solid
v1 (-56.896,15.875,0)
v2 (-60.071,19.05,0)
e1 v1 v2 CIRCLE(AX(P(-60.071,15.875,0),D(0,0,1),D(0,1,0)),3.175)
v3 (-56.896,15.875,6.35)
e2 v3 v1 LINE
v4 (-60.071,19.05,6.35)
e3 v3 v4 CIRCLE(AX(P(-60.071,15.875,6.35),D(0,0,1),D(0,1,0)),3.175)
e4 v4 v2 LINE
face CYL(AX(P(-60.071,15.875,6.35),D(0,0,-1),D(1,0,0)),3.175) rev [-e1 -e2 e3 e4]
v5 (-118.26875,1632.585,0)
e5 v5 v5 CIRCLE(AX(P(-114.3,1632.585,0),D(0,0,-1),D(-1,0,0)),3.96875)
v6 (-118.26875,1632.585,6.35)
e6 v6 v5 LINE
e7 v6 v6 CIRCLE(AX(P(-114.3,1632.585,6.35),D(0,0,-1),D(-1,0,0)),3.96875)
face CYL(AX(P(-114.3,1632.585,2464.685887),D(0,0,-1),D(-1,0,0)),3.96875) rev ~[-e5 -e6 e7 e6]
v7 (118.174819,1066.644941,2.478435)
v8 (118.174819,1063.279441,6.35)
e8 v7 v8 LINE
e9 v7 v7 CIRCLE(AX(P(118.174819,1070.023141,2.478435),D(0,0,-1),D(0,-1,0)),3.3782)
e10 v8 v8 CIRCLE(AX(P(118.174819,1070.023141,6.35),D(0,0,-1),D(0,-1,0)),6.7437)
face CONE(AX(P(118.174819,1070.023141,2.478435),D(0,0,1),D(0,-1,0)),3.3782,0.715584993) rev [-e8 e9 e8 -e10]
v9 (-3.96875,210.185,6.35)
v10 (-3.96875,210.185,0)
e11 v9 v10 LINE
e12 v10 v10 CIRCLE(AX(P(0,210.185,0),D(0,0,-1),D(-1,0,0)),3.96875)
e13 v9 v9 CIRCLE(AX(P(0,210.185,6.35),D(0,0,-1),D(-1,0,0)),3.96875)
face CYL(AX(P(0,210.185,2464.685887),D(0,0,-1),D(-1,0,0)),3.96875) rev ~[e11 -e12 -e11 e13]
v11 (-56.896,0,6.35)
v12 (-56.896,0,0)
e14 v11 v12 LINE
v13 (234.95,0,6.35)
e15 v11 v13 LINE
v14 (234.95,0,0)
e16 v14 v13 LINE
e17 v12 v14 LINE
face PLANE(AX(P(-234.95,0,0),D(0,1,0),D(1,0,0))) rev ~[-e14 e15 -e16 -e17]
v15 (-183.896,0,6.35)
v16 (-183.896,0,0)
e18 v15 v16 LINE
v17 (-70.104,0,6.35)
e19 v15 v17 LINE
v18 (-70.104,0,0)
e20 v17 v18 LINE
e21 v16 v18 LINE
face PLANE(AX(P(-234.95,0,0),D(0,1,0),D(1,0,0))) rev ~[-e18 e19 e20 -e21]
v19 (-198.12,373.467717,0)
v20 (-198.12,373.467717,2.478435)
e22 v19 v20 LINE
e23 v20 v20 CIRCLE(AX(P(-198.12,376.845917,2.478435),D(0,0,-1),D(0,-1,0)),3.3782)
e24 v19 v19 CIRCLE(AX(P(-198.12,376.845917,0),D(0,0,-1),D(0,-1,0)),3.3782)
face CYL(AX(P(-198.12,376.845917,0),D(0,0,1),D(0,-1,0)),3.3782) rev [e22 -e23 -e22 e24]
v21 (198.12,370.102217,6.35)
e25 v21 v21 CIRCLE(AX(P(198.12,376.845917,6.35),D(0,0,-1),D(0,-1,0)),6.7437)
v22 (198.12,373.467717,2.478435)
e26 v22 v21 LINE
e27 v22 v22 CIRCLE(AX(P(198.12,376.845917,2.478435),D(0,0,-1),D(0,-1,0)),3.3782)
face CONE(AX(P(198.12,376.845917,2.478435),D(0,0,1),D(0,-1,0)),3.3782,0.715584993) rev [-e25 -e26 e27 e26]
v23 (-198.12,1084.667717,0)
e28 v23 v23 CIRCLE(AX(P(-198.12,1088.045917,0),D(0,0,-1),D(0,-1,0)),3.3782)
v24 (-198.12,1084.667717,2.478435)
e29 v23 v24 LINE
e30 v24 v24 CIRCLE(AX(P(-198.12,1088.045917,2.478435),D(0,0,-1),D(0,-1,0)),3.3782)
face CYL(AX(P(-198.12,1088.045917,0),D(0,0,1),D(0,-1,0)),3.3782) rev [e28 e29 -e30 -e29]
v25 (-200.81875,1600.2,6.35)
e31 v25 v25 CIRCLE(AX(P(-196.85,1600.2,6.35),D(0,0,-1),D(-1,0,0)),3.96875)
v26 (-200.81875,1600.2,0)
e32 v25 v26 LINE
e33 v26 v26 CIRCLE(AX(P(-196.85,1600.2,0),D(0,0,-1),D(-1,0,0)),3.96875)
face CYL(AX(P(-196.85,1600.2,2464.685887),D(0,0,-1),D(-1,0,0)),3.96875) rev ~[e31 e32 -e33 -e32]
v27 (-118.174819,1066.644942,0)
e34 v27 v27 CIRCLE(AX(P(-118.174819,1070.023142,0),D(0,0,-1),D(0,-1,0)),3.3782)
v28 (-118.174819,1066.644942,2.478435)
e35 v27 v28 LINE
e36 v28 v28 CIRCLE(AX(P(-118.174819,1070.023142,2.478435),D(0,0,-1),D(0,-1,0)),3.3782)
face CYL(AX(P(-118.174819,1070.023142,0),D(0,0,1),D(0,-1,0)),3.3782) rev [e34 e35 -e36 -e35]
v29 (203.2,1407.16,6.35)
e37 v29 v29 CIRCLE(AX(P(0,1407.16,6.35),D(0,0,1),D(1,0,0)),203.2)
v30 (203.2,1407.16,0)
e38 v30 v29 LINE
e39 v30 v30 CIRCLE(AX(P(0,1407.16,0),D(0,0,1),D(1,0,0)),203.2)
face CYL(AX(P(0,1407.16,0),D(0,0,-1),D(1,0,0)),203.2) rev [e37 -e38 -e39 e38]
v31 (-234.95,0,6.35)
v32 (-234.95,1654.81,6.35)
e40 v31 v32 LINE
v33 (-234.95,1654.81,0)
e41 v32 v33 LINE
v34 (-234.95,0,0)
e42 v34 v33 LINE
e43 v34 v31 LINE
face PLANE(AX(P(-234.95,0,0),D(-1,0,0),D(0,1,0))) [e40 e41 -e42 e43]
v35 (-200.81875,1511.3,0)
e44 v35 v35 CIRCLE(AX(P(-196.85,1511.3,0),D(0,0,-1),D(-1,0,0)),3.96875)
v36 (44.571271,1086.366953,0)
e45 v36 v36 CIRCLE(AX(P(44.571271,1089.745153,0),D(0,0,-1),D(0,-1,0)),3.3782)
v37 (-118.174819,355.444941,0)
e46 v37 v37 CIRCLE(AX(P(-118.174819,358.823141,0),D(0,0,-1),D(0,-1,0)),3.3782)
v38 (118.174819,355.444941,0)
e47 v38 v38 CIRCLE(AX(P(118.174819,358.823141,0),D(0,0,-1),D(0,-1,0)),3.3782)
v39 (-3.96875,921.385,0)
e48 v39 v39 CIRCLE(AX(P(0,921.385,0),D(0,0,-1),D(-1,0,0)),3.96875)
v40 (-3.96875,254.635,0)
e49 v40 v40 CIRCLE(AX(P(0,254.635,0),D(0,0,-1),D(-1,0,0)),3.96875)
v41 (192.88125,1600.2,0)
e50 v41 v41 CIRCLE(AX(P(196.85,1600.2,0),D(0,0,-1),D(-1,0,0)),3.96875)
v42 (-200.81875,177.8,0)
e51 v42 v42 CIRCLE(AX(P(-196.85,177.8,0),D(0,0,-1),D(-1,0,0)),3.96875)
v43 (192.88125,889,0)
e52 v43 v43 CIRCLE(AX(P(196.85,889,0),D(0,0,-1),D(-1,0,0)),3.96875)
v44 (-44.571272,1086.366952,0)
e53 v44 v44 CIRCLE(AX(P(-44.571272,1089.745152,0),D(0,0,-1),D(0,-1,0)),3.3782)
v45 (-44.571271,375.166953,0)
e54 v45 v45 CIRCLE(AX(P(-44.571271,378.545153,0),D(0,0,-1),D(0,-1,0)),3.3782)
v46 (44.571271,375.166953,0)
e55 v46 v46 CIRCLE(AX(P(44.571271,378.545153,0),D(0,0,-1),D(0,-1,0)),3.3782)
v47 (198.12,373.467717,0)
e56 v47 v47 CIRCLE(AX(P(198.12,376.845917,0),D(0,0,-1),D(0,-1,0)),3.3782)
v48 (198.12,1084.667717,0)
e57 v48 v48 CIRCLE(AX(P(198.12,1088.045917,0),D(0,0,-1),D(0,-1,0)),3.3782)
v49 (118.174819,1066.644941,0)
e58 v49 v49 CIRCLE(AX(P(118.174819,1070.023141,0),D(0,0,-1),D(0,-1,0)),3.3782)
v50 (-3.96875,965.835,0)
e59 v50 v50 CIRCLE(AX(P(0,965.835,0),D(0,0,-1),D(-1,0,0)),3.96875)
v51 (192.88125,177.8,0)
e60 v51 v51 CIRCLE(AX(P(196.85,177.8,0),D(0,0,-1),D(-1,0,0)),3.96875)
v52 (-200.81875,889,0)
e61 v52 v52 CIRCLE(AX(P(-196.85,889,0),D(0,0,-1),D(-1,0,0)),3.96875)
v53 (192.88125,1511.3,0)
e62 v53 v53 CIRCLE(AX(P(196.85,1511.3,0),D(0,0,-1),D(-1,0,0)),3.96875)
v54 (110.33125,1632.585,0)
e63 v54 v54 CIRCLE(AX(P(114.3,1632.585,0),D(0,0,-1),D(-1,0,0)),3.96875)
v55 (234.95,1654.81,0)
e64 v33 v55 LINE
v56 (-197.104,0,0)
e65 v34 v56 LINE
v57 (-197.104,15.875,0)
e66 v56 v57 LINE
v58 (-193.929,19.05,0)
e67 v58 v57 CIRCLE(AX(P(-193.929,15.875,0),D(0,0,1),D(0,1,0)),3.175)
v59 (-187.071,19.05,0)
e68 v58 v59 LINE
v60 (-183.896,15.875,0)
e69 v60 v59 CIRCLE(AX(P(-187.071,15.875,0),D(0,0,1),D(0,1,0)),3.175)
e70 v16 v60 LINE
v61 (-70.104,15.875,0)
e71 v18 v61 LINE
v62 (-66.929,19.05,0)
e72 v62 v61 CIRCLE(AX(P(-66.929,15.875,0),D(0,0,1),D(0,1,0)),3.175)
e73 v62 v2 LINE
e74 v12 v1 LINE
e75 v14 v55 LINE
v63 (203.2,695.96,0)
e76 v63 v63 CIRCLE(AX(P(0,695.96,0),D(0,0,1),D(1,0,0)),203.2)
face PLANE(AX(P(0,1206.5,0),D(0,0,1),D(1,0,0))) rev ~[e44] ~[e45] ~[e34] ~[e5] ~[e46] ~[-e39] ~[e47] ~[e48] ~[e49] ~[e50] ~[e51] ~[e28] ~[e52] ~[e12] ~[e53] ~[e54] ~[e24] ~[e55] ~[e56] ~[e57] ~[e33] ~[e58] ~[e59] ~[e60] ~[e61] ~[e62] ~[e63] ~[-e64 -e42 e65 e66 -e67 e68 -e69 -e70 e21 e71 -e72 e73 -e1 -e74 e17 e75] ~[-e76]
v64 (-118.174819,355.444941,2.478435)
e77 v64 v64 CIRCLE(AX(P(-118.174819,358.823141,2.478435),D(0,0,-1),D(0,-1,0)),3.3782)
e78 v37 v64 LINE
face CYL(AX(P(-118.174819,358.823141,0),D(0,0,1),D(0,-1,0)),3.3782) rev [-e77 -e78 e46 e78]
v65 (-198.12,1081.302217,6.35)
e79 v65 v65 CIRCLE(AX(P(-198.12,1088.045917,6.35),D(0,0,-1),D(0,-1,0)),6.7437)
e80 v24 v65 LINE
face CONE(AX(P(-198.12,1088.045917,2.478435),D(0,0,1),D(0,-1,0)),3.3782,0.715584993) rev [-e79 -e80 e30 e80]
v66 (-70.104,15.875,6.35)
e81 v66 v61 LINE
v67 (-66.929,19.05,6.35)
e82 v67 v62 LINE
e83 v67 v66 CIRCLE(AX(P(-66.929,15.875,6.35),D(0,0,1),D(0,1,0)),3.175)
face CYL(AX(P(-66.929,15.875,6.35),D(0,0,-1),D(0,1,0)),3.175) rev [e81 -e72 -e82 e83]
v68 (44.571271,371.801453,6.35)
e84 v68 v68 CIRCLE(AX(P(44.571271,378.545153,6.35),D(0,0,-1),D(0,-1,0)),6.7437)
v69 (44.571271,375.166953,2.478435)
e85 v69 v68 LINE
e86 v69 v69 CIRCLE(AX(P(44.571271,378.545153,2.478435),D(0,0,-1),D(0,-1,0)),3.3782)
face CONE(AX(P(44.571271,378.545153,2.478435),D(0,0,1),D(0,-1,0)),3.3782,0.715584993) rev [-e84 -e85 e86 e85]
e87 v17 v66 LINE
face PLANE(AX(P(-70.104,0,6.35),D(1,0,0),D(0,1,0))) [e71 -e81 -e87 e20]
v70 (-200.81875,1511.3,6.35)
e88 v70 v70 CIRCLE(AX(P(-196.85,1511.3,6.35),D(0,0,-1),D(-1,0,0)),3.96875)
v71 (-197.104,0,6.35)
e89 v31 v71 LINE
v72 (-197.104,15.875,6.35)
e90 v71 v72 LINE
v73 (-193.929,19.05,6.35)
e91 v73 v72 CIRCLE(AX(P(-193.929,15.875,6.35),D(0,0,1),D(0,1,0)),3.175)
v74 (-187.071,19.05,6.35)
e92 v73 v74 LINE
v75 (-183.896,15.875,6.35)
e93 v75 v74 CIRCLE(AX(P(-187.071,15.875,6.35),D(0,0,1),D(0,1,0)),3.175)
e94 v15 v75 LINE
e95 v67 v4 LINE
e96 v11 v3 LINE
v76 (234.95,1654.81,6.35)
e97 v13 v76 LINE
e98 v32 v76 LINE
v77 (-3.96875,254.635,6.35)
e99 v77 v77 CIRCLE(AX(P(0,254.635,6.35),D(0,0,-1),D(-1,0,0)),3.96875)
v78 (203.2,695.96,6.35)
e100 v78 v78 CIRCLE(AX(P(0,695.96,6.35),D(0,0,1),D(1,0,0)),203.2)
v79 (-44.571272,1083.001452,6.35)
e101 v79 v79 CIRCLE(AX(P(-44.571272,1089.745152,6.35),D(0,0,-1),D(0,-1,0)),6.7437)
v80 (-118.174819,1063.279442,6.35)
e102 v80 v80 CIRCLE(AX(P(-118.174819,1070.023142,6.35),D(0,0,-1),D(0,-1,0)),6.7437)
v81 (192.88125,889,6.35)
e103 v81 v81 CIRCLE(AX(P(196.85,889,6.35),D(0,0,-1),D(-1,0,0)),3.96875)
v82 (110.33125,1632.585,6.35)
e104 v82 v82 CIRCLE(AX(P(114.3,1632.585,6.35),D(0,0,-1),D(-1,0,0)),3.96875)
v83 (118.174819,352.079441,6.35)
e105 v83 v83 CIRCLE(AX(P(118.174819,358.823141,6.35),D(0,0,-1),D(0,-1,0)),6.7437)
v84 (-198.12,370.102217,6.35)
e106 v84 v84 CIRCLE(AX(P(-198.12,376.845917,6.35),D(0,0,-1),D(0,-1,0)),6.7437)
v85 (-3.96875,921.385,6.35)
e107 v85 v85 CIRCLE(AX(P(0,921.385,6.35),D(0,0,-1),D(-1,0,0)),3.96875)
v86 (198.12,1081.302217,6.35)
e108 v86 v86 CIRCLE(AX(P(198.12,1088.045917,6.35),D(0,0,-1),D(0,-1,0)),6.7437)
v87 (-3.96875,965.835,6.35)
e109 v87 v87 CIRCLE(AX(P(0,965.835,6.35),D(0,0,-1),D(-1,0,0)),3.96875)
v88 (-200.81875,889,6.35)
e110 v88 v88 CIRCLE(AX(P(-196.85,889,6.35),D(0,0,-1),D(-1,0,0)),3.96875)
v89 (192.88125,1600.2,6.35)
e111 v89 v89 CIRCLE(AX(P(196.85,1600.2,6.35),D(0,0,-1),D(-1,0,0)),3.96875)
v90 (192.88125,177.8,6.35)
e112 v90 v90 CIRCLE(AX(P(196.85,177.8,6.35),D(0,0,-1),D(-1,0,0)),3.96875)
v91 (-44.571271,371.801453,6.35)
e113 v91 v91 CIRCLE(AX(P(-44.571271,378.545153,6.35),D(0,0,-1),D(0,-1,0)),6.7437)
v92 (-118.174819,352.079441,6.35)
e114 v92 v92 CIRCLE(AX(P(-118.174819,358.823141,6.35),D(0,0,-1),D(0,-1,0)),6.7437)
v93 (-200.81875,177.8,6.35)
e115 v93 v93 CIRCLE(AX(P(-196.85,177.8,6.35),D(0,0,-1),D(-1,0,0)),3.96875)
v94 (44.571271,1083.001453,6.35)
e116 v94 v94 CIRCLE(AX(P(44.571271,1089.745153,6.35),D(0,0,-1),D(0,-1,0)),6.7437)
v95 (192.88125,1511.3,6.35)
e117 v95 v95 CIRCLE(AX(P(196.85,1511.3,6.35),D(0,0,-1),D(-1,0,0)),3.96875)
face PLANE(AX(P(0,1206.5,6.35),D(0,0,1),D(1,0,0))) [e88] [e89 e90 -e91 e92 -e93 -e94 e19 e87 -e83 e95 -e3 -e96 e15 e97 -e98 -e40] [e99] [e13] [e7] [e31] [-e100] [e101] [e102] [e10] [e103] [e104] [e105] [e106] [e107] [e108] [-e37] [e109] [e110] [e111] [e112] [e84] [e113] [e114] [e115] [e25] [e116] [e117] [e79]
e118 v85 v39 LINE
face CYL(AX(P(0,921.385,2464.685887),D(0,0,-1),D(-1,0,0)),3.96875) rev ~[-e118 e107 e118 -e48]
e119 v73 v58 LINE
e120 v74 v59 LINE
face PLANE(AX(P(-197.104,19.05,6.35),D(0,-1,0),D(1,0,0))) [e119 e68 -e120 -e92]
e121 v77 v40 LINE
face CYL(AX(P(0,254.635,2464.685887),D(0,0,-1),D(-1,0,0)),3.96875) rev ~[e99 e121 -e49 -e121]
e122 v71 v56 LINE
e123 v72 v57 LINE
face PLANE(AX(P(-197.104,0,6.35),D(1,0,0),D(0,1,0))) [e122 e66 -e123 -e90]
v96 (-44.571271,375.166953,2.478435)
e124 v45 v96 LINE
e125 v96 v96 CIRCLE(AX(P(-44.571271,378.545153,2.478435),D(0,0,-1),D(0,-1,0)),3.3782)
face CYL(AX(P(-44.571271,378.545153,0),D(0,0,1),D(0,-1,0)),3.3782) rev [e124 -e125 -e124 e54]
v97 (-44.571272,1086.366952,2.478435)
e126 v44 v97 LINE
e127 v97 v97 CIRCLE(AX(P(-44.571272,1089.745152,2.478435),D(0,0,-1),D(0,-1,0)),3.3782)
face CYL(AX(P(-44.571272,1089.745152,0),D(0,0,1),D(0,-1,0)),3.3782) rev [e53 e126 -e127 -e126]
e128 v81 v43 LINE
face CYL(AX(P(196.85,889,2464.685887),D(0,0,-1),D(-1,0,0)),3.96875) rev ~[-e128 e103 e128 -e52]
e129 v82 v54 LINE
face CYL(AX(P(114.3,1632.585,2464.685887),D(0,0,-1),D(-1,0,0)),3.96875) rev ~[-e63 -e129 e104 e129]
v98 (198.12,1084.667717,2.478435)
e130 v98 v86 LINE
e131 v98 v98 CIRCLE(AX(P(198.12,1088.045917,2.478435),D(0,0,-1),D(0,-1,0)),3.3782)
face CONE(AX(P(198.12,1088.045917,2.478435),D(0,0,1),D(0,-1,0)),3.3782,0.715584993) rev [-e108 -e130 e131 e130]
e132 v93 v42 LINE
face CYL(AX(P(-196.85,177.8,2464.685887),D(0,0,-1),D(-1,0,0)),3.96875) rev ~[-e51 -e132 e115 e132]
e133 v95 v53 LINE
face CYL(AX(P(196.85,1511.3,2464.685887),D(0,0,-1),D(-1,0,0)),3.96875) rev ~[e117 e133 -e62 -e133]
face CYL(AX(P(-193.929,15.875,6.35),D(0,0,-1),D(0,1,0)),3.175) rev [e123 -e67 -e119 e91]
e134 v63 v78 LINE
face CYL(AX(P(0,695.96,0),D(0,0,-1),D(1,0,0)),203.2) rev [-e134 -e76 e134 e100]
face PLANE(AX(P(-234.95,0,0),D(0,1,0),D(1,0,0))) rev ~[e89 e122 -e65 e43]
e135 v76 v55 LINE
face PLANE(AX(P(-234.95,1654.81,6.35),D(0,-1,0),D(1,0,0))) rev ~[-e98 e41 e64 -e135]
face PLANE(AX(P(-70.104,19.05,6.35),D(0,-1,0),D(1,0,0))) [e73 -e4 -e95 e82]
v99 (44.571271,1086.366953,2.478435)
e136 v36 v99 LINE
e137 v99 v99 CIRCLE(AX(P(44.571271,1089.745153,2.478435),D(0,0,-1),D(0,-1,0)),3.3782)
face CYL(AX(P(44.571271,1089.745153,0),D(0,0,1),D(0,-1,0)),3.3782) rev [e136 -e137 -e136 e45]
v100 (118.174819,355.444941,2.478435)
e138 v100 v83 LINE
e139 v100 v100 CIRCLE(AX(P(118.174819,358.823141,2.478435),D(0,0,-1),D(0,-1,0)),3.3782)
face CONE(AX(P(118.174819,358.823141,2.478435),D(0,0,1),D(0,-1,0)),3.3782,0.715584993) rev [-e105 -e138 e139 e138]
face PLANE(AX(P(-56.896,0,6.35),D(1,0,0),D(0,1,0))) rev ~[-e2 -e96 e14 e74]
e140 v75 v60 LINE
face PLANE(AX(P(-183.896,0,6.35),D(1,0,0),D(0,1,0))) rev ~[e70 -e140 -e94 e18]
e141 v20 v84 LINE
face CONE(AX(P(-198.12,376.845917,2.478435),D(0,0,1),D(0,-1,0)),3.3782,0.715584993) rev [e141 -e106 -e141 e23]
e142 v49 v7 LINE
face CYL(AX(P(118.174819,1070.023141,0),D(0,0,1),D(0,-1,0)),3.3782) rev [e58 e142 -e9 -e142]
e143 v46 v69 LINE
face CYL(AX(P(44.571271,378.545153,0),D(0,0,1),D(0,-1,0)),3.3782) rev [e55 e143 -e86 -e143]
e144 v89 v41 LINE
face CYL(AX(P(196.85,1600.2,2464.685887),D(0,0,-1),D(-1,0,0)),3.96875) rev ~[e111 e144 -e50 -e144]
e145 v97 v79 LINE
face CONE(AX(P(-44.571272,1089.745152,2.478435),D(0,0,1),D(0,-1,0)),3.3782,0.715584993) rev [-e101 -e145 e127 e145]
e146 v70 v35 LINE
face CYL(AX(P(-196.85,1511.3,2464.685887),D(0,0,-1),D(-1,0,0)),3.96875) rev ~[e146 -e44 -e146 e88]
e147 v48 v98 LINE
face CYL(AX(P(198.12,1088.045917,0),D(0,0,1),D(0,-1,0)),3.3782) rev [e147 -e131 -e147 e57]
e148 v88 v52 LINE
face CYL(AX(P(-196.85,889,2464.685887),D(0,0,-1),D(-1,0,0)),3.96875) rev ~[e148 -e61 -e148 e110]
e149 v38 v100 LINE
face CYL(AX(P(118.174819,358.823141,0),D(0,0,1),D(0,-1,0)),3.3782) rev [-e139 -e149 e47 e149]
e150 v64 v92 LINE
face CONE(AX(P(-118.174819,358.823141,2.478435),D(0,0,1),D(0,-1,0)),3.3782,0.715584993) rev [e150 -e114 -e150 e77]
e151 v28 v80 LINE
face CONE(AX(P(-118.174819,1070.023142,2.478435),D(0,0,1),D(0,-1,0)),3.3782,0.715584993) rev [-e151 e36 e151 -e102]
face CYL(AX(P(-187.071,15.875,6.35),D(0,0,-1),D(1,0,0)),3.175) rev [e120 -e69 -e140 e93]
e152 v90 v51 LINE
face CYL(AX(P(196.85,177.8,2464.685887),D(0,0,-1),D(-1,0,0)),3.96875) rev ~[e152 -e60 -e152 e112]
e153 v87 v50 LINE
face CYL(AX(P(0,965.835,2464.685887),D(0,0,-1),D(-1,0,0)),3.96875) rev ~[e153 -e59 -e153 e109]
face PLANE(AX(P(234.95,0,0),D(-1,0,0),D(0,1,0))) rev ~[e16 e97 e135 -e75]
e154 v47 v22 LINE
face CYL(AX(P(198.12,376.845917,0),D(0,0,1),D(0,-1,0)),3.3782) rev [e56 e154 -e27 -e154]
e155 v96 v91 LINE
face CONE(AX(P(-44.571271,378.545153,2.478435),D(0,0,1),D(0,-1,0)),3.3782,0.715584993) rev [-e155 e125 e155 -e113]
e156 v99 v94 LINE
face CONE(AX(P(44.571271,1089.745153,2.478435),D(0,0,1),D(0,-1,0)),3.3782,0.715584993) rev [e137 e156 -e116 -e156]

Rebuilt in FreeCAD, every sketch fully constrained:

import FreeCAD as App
import Part
import Sketcher
from FreeCAD import Vector
Q = App.Units.Quantity


def edges_at(feature, points):
    """Names of the edges that pass closest to the given points."""
    edges = feature.Shape.Edges
    near = lambda p: min(range(len(edges)), key=lambda i: edges[i].distToShape(Part.Vertex(*p))[0])
    return sorted({f"Edge{near(p) + 1}" for p in points})


def add_polygon(sketch, points):
    """Adds a closed chain of lines whose ends are joined by coincident constraints."""
    first, n = sketch.GeometryCount, len(points)
    for a, b in zip(points, points[1:] + points[:1]):
        sketch.addGeometry(Part.LineSegment(App.Vector(*a, 0), App.Vector(*b, 0)), False)
    for i in range(n):
        sketch.addConstraint(Sketcher.Constraint("Coincident", first + i, 2, first + (i + 1) % n, 1))

doc = App.newDocument("Part")
body = doc.addObject("PartDesign::Body", "Body")

# Sketch on XY plane
sketch1 = body.newObject("Sketcher::SketchObject", "Sketch")
sketch1.AttachmentSupport = (doc.getObject("XY_Plane"), [""])
sketch1.MapMode = "FlatFace"
add_polygon(sketch1, [(-235, 2413), (-235, 0), (235, 0), (235, 2413)])  # lines 0-3
sketch1.addGeometry(Part.Circle(Vector(0, 696, 0), Vector(0, 0, 1), 203), False)  # 4
sketch1.addGeometry(Part.Circle(Vector(0, 1407, 0), Vector(0, 0, 1), 203), False)  # 5
sketch1.addGeometry(Part.Circle(Vector(0, 2118, 0), Vector(0, 0, 1), 203), False)  # 6
sketch1.addConstraint([
    Sketcher.Constraint("Vertical", 0),
    Sketcher.Constraint("Horizontal", 1),
    Sketcher.Constraint("Vertical", 2),
    Sketcher.Constraint("Horizontal", 3),
    Sketcher.Constraint("Equal", 4, 5),
    Sketcher.Constraint("Equal", 5, 6),
    Sketcher.Constraint("Symmetric", 0, 2, 1, 2, -1, 1),
    Sketcher.Constraint("PointOnObject", 4, 3, -2),
    Sketcher.Constraint("PointOnObject", 5, 3, -2),
    Sketcher.Constraint("PointOnObject", 6, 3, -2),
    Sketcher.Constraint("Diameter", 4, Q("16 in")),
    Sketcher.Constraint("DistanceY", 0, 2, 0, 1, Q("95 in")),
    Sketcher.Constraint("DistanceX", 1, 1, 1, 2, Q("18.5 in")),
    Sketcher.Constraint("DistanceY", 4, 3, 5, 3, Q("28 in")),
    Sketcher.Constraint("DistanceY", 5, 3, 6, 3, Q("28 in")),
    Sketcher.Constraint("DistanceY", -1, 1, 4, 3, Q("27.4 in")),
])
pad1 = body.newObject("PartDesign::Pad", "Pad")
pad1.Profile = sketch1
pad1.Length = Q("0.25 in")

# Sketch on YZ plane
sketch2 = body.newObject("Sketcher::SketchObject", "Sketch001")
sketch2.AttachmentSupport = (doc.getObject("YZ_Plane"), [""])
sketch2.MapMode = "FlatFace"
sketch2.AttachmentOffset = App.Placement(Vector(0, 0, 44.571271), App.Rotation())
add_polygon(sketch2, [(378.5, 0), (378.5, 6.3), (371.8, 6.3), (375.2, 2.5), (375.2, 0)])  # lines 0-4
sketch2.addGeometry(Part.LineSegment(Vector(378.5, 6.3, 0), Vector(378.5, 0, 0)), True)  # axis
sketch2.addConstraint([
    Sketcher.Constraint("Vertical", 0),
    Sketcher.Constraint("Horizontal", 1),
    Sketcher.Constraint("Vertical", 3),
    Sketcher.Constraint("Horizontal", 4),
    Sketcher.Constraint("Vertical", 5),
    Sketcher.Constraint("Coincident", 5, 1, 0, 2),
    Sketcher.Constraint("PointOnObject", 3, 2, -1),
    Sketcher.Constraint("PointOnObject", 5, 2, -1),
    Sketcher.Constraint("Angle", 2, Q("-49 deg")),
    Sketcher.Constraint("DistanceY", 0, 1, 0, 2, Q("0.25 in")),
    Sketcher.Constraint("DistanceX", 4, 1, 4, 2, Q("0.133 in")),
    Sketcher.Constraint("DistanceX", 1, 2, 1, 1, Q("0.2655 in")),
    Sketcher.Constraint("DistanceX", -1, 1, 0, 2, Q("378.545153 mm")),
])
groove = body.newObject("PartDesign::Groove", "Groove")
groove.Profile = sketch2
groove.ReferenceAxis = (sketch2, ["Axis0"])
groove.Angle = 360
doc.recompute()

datumline = body.newObject("PartDesign::Line", "DatumLine")
datumline.Placement = App.Placement(Vector(0, 0, 0), App.Rotation(Vector(0, 0, 1), Vector(0.965925826, -0.258819045, 0)))
linearpattern = body.newObject("PartDesign::LinearPattern", "LinearPattern")
linearpattern.Originals = [groove]
linearpattern.Direction = (datumline, [""])
linearpattern.Mode = "offset"
linearpattern.Offset = Q("3 in")
linearpattern.Occurrences = 2
body.Tip = linearpattern
doc.recompute()

linearpattern2 = body.newObject("PartDesign::LinearPattern", "LinearPattern001")
linearpattern2.Originals = [groove]
linearpattern2.Direction = (doc.getObject("X_Axis"), [""])
linearpattern2.Mode = "offset"
linearpattern2.Offset = 89.142542
linearpattern2.Occurrences = 2
linearpattern2.Reversed = True
body.Tip = linearpattern2
doc.recompute()

datumline2 = body.newObject("PartDesign::Line", "DatumLine001")
datumline2.Placement = App.Placement(Vector(0, 0, 0), App.Rotation(Vector(0, 0, 1), Vector(-0.99273727, -0.120302586, 0)))
linearpattern3 = body.newObject("PartDesign::LinearPattern", "LinearPattern002")
linearpattern3.Originals = [groove]
linearpattern3.Direction = (datumline2, [""])
linearpattern3.Mode = "offset"
linearpattern3.Offset = 163.936718
linearpattern3.Occurrences = 2
body.Tip = linearpattern3
doc.recompute()

linearpattern4 = body.newObject("PartDesign::LinearPattern", "LinearPattern003")
linearpattern4.Originals = [groove]
linearpattern4.Direction = (doc.getObject("Y_Axis"), [""])
linearpattern4.Mode = "offset"
linearpattern4.Offset = Q("28 in")
linearpattern4.Occurrences = 2
body.Tip = linearpattern4
doc.recompute()

datumline3 = body.newObject("PartDesign::Line", "DatumLine002")
datumline3.Placement = App.Placement(Vector(0, 0, 0), App.Rotation(Vector(0, 0, 1), Vector(0.105845862, 0.994382549, 0)))
linearpattern5 = body.newObject("PartDesign::LinearPattern", "LinearPattern004")
linearpattern5.Originals = [groove]
linearpattern5.Direction = (datumline3, [""])
linearpattern5.Mode = "offset"
linearpattern5.Offset = 695.384276
linearpattern5.Occurrences = 2
body.Tip = linearpattern5
doc.recompute()

datumline4 = body.newObject("PartDesign::Line", "DatumLine003")
datumline4.Placement = App.Placement(Vector(0, 0, 0), App.Rotation(Vector(0, 0, 1), Vector(-0.124367907, 0.992236173, 0)))
linearpattern6 = body.newObject("PartDesign::LinearPattern", "LinearPattern005")
linearpattern6.Originals = [groove]
linearpattern6.Direction = (datumline4, [""])
linearpattern6.Mode = "offset"
linearpattern6.Offset = 716.764838
linearpattern6.Occurrences = 2
body.Tip = linearpattern6
doc.recompute()

datumline5 = body.newObject("PartDesign::Line", "DatumLine004")
datumline5.Placement = App.Placement(Vector(0, 0, 0), App.Rotation(Vector(0, 0, 1), Vector(-0.229099874, 0.973402922, 0)))
linearpattern7 = body.newObject("PartDesign::LinearPattern", "LinearPattern006")
linearpattern7.Originals = [groove]
linearpattern7.Direction = (datumline5, [""])
linearpattern7.Mode = "offset"
linearpattern7.Offset = 710.371804
linearpattern7.Occurrences = 2
body.Tip = linearpattern7
doc.recompute()

linearpattern8 = body.newObject("PartDesign::LinearPattern", "LinearPattern007")
linearpattern8.Originals = [groove]
linearpattern8.Direction = (doc.getObject("Y_Axis"), [""])
linearpattern8.Mode = "offset"
linearpattern8.Offset = Q("56 in")
linearpattern8.Occurrences = 2
body.Tip = linearpattern8
doc.recompute()

datumline6 = body.newObject("PartDesign::Line", "DatumLine005")
datumline6.Placement = App.Placement(Vector(0, 0, 0), App.Rotation(Vector(0, 0, 1), Vector(0.052401495, 0.998626098, 0)))
linearpattern9 = body.newObject("PartDesign::LinearPattern", "LinearPattern008")
linearpattern9.Originals = [groove]
linearpattern9.Direction = (datumline6, [""])
linearpattern9.Mode = "offset"
linearpattern9.Offset = 1404.607783
linearpattern9.Occurrences = 2
body.Tip = linearpattern9
doc.recompute()

datumline7 = body.newObject("PartDesign::Line", "DatumLine006")
datumline7.Placement = App.Placement(Vector(0, 0, 0), App.Rotation(Vector(0, 0, 1), Vector(-0.062547805, 0.998041969, 0)))
linearpattern10 = body.newObject("PartDesign::LinearPattern", "LinearPattern009")
linearpattern10.Originals = [groove]
linearpattern10.Direction = (datumline7, [""])
linearpattern10.Mode = "offset"
linearpattern10.Offset = 1425.190567
linearpattern10.Occurrences = 2
body.Tip = linearpattern10
doc.recompute()

datumline8 = body.newObject("PartDesign::Line", "DatumLine007")
datumline8.Placement = App.Placement(Vector(0, 0, 0), App.Rotation(Vector(0, 0, 1), Vector(-0.115252108, 0.993336273, 0)))
linearpattern11 = body.newObject("PartDesign::LinearPattern", "LinearPattern010")
linearpattern11.Originals = [groove]
linearpattern11.Direction = (datumline8, [""])
linearpattern11.Mode = "offset"
linearpattern11.Offset = 1412.087756
linearpattern11.Occurrences = 2
body.Tip = linearpattern11
doc.recompute()

datumline9 = body.newObject("PartDesign::Line", "DatumLine008")
datumline9.Placement = App.Placement(Vector(0, 0, 0), App.Rotation(Vector(0, 0, 1), Vector(0.999938773, -0.011065747, 0)))
linearpattern12 = body.newObject("PartDesign::LinearPattern", "LinearPattern011")
linearpattern12.Originals = [groove]
linearpattern12.Direction = (datumline9, [""])
linearpattern12.Mode = "offset"
linearpattern12.Offset = 153.558131
linearpattern12.Occurrences = 2
body.Tip = linearpattern12
doc.recompute()

datumline10 = body.newObject("PartDesign::Line", "DatumLine009")
datumline10.Placement = App.Placement(Vector(0, 0, 0), App.Rotation(Vector(0, 0, 1), Vector(-0.999975489, -0.007001462, 0)))
linearpattern13 = body.newObject("PartDesign::LinearPattern", "LinearPattern012")
linearpattern13.Originals = [groove]
linearpattern13.Direction = (datumline10, [""])
linearpattern13.Mode = "offset"
linearpattern13.Offset = 242.69722
linearpattern13.Occurrences = 2
body.Tip = linearpattern13
doc.recompute()

datumline11 = body.newObject("PartDesign::Line", "DatumLine010")
datumline11.Placement = App.Placement(Vector(0, 0, 0), App.Rotation(Vector(0, 0, 1), Vector(-0.32364867, 0.946177329, 0)))
linearpattern14 = body.newObject("PartDesign::LinearPattern", "LinearPattern013")
linearpattern14.Originals = [groove]
linearpattern14.Direction = (datumline11, [""])
linearpattern14.Mode = "offset"
linearpattern14.Offset = 749.860245
linearpattern14.Occurrences = 2
body.Tip = linearpattern14
doc.recompute()

datumline12 = body.newObject("PartDesign::Line", "DatumLine011")
datumline12.Placement = App.Placement(Vector(0, 0, 0), App.Rotation(Vector(0, 0, 1), Vector(-0.168385861, 0.985721158, 0)))
linearpattern15 = body.newObject("PartDesign::LinearPattern", "LinearPattern014")
linearpattern15.Originals = [groove]
linearpattern15.Direction = (datumline12, [""])
linearpattern15.Mode = "offset"
linearpattern15.Offset = 1441.280581
linearpattern15.Occurrences = 2
body.Tip = linearpattern15
doc.recompute()

datumline13 = body.newObject("PartDesign::Line", "DatumLine012")
datumline13.Placement = App.Placement(Vector(0, 0, 0), App.Rotation(Vector(0, 0, 1), Vector(0.107453799, 0.994210079, 0)))
linearpattern16 = body.newObject("PartDesign::LinearPattern", "LinearPattern015")
linearpattern16.Originals = [groove]
linearpattern16.Direction = (datumline13, [""])
linearpattern16.Mode = "offset"
linearpattern16.Offset = 1428.974414
linearpattern16.Occurrences = 2
body.Tip = linearpattern16
doc.recompute()

datumline14 = body.newObject("PartDesign::Line", "DatumLine013")
datumline14.Placement = App.Placement(Vector(0, 0, 0), App.Rotation(Vector(0, 0, 1), Vector(0.211521189, 0.977373412, 0)))
linearpattern17 = body.newObject("PartDesign::LinearPattern", "LinearPattern016")
linearpattern17.Originals = [groove]
linearpattern17.Direction = (datumline14, [""])
linearpattern17.Mode = "offset"
linearpattern17.Offset = 725.925993
linearpattern17.Occurrences = 2
body.Tip = linearpattern17

# Sketch on XY plane
sketch3 = body.newObject("Sketcher::SketchObject", "Sketch002")
sketch3.AttachmentSupport = (doc.getObject("XY_Plane"), [""])
sketch3.MapMode = "FlatFace"
sketch3.AttachmentOffset = App.Placement(Vector(0, 0, 0.25 * 25.4), App.Rotation())
sketch3.addGeometry([
    Part.Circle(Vector(0, 254.6, 0), Vector(0, 0, 1), 4),  # 0
    Part.Circle(Vector(0, 210.2, 0), Vector(0, 0, 1), 4),  # 1
    Part.Circle(Vector(-196.8, 177.8, 0), Vector(0, 0, 1), 4),  # 2
    Part.Circle(Vector(196.8, 177.8, 0), Vector(0, 0, 1), 4),  # 3
    Part.Circle(Vector(0, 965.8, 0), Vector(0, 0, 1), 4),  # 4
    Part.Circle(Vector(0, 921.4, 0), Vector(0, 0, 1), 4),  # 5
    Part.Circle(Vector(-196.8, 889, 0), Vector(0, 0, 1), 4),  # 6
    Part.Circle(Vector(196.8, 889, 0), Vector(0, 0, 1), 4),  # 7
    Part.Circle(Vector(-196.8, 1600.2, 0), Vector(0, 0, 1), 4),  # 8
    Part.Circle(Vector(196.8, 1600.2, 0), Vector(0, 0, 1), 4),  # 9
    Part.Circle(Vector(-114.3, 1632.6, 0), Vector(0, 0, 1), 4),  # 10
    Part.Circle(Vector(-114.3, 1677, 0), Vector(0, 0, 1), 4),  # 11
    Part.Circle(Vector(114.3, 1677, 0), Vector(0, 0, 1), 4),  # 12
    Part.Circle(Vector(114.3, 1632.6, 0), Vector(0, 0, 1), 4),  # 13
    Part.Circle(Vector(196.8, 1511.3, 0), Vector(0, 0, 1), 4),  # 14
    Part.Circle(Vector(-196.8, 1511.3, 0), Vector(0, 0, 1), 4),  # 15
], False)
sketch3.addConstraint([
    Sketcher.Constraint("Equal", 0, 1),
    Sketcher.Constraint("Equal", 1, 2),
    Sketcher.Constraint("Equal", 2, 3),
    Sketcher.Constraint("Equal", 3, 4),
    Sketcher.Constraint("Equal", 4, 5),
    Sketcher.Constraint("Equal", 5, 6),
    Sketcher.Constraint("Equal", 6, 7),
    Sketcher.Constraint("Equal", 7, 8),
    Sketcher.Constraint("Equal", 8, 9),
    Sketcher.Constraint("Equal", 9, 10),
    Sketcher.Constraint("Equal", 10, 11),
    Sketcher.Constraint("Equal", 11, 12),
    Sketcher.Constraint("Equal", 12, 13),
    Sketcher.Constraint("Equal", 13, 14),
    Sketcher.Constraint("Equal", 14, 15),
    Sketcher.Constraint("Symmetric", 2, 3, 3, 3, -2),
    Sketcher.Constraint("Symmetric", 6, 3, 7, 3, -2),
    Sketcher.Constraint("Symmetric", 8, 3, 9, 3, -2),
    Sketcher.Constraint("Symmetric", 11, 3, 12, 3, -2),
    Sketcher.Constraint("Symmetric", 10, 3, 13, 3, -2),
    Sketcher.Constraint("Symmetric", 14, 3, 15, 3, -2),
    Sketcher.Constraint("PointOnObject", 0, 3, -2),
    Sketcher.Constraint("PointOnObject", 1, 3, -2),
    Sketcher.Constraint("PointOnObject", 4, 3, -2),
    Sketcher.Constraint("PointOnObject", 5, 3, -2),
    Sketcher.Constraint("Vertical", 2, 3, 6, 3),
    Sketcher.Constraint("Vertical", 6, 3, 8, 3),
    Sketcher.Constraint("Vertical", 10, 3, 11, 3),
    Sketcher.Constraint("Vertical", 9, 3, 14, 3),
    Sketcher.Constraint("Diameter", 0, Q("0.3125 in")),
    Sketcher.Constraint("DistanceY", -1, 1, 2, 3, Q("7 in")),
    Sketcher.Constraint("DistanceY", -1, 1, 6, 3, Q("35 in")),
    Sketcher.Constraint("DistanceY", -1, 1, 8, 3, Q("63 in")),
    Sketcher.Constraint("DistanceY", 0, 3, 4, 3, Q("28 in")),
    Sketcher.Constraint("DistanceY", 1, 3, 5, 3, Q("28 in")),
    Sketcher.Constraint("DistanceY", 5, 3, 10, 3, Q("28 in")),
    Sketcher.Constraint("DistanceY", 4, 3, 11, 3, Q("28 in")),
    Sketcher.Constraint("DistanceX", 11, 3, 12, 3, Q("9 in")),
    Sketcher.Constraint("DistanceY", -1, 1, 14, 3, Q("59.5 in")),
    Sketcher.Constraint("DistanceX", 2, 3, 3, 3, Q("15.5 in")),
    Sketcher.Constraint("DistanceY", 1, 3, 0, 3, Q("1.75 in")),
    Sketcher.Constraint("DistanceY", -1, 1, 0, 3, Q("10.025 in")),
])
doc.recompute()
hole = body.newObject("PartDesign::Hole", "Hole")
hole.Profile = sketch3
hole.ThreadType = "None"
hole.Diameter = Q("0.3125 in")
hole.DepthType = "ThroughAll"

# Sketch on XY plane
sketch4 = body.newObject("Sketcher::SketchObject", "Sketch003")
sketch4.AttachmentSupport = (doc.getObject("XY_Plane"), [""])
sketch4.MapMode = "FlatFace"
sketch4.AttachmentOffset = App.Placement(Vector(0, 0, 0.25 * 25.4), App.Rotation())
add_polygon(sketch4, [(-235, 2413), (-235, 1655), (235, 1655), (235, 2413)])  # lines 0-3
sketch4.addConstraint([
    Sketcher.Constraint("Vertical", 0),
    Sketcher.Constraint("Horizontal", 1),
    Sketcher.Constraint("Vertical", 2),
    Sketcher.Constraint("Horizontal", 3),
    Sketcher.Constraint("DistanceX", 1, 1, 1, 2, Q("18.5 in")),
    Sketcher.Constraint("DistanceY", -1, 1, 2, 2, Q("95 in")),
    Sketcher.Constraint("DistanceY", 0, 2, 0, 1, Q("29.85 in")),
    Sketcher.Constraint("DistanceX", 0, 2, -1, 1, Q("9.25 in")),
])
pocket1 = body.newObject("PartDesign::Pocket", "Pocket")
pocket1.Profile = sketch4
pocket1.Type = "ThroughAll"

# Sketch on XY plane
sketch5 = body.newObject("Sketcher::SketchObject", "Sketch004")
sketch5.AttachmentSupport = (doc.getObject("XY_Plane"), [""])
sketch5.MapMode = "FlatFace"
sketch5.AttachmentOffset = App.Placement(Vector(0, 0, 0.25 * 25.4), App.Rotation())
add_polygon(sketch5, [(-70, 19), (-70, 0), (-57, 0), (-57, 19)])  # lines 0-3
add_polygon(sketch5, [(-197, 19), (-197, 0), (-184, 0), (-184, 19)])  # lines 4-7
sketch5.addConstraint([
    Sketcher.Constraint("Vertical", 0),
    Sketcher.Constraint("Horizontal", 1),
    Sketcher.Constraint("Vertical", 2),
    Sketcher.Constraint("Horizontal", 3),
    Sketcher.Constraint("Vertical", 4),
    Sketcher.Constraint("Horizontal", 5),
    Sketcher.Constraint("Vertical", 6),
    Sketcher.Constraint("Horizontal", 7),
    Sketcher.Constraint("PointOnObject", 0, 2, -1),
    Sketcher.Constraint("PointOnObject", 4, 2, -1),
    Sketcher.Constraint("Horizontal", 3, 2, 6, 2),
    Sketcher.Constraint("Equal", 3, 5),
    Sketcher.Constraint("DistanceX", 4, 2, 0, 2, Q("5 in")),
    Sketcher.Constraint("DistanceX", 1, 1, 1, 2, Q("0.52 in")),
    Sketcher.Constraint("DistanceY", 0, 2, 0, 1, Q("0.75 in")),
    Sketcher.Constraint("DistanceX", 0, 2, -1, 1, Q("2.76 in")),
])
pocket2 = body.newObject("PartDesign::Pocket", "Pocket001")
pocket2.Profile = sketch5
pocket2.Type = "ThroughAll"
doc.recompute()

fillet = body.newObject("PartDesign::Fillet", "Fillet")
fillet.Base = (pocket2, edges_at(pocket2, [
    (-70.104, 19.05, 3.175),
    (-56.896, 19.05, 3.175),
    (-197.104, 19.05, 3.175),
    (-183.896, 19.05, 3.175),
]))
fillet.Radius = Q("0.125 in")

doc.recompute()
